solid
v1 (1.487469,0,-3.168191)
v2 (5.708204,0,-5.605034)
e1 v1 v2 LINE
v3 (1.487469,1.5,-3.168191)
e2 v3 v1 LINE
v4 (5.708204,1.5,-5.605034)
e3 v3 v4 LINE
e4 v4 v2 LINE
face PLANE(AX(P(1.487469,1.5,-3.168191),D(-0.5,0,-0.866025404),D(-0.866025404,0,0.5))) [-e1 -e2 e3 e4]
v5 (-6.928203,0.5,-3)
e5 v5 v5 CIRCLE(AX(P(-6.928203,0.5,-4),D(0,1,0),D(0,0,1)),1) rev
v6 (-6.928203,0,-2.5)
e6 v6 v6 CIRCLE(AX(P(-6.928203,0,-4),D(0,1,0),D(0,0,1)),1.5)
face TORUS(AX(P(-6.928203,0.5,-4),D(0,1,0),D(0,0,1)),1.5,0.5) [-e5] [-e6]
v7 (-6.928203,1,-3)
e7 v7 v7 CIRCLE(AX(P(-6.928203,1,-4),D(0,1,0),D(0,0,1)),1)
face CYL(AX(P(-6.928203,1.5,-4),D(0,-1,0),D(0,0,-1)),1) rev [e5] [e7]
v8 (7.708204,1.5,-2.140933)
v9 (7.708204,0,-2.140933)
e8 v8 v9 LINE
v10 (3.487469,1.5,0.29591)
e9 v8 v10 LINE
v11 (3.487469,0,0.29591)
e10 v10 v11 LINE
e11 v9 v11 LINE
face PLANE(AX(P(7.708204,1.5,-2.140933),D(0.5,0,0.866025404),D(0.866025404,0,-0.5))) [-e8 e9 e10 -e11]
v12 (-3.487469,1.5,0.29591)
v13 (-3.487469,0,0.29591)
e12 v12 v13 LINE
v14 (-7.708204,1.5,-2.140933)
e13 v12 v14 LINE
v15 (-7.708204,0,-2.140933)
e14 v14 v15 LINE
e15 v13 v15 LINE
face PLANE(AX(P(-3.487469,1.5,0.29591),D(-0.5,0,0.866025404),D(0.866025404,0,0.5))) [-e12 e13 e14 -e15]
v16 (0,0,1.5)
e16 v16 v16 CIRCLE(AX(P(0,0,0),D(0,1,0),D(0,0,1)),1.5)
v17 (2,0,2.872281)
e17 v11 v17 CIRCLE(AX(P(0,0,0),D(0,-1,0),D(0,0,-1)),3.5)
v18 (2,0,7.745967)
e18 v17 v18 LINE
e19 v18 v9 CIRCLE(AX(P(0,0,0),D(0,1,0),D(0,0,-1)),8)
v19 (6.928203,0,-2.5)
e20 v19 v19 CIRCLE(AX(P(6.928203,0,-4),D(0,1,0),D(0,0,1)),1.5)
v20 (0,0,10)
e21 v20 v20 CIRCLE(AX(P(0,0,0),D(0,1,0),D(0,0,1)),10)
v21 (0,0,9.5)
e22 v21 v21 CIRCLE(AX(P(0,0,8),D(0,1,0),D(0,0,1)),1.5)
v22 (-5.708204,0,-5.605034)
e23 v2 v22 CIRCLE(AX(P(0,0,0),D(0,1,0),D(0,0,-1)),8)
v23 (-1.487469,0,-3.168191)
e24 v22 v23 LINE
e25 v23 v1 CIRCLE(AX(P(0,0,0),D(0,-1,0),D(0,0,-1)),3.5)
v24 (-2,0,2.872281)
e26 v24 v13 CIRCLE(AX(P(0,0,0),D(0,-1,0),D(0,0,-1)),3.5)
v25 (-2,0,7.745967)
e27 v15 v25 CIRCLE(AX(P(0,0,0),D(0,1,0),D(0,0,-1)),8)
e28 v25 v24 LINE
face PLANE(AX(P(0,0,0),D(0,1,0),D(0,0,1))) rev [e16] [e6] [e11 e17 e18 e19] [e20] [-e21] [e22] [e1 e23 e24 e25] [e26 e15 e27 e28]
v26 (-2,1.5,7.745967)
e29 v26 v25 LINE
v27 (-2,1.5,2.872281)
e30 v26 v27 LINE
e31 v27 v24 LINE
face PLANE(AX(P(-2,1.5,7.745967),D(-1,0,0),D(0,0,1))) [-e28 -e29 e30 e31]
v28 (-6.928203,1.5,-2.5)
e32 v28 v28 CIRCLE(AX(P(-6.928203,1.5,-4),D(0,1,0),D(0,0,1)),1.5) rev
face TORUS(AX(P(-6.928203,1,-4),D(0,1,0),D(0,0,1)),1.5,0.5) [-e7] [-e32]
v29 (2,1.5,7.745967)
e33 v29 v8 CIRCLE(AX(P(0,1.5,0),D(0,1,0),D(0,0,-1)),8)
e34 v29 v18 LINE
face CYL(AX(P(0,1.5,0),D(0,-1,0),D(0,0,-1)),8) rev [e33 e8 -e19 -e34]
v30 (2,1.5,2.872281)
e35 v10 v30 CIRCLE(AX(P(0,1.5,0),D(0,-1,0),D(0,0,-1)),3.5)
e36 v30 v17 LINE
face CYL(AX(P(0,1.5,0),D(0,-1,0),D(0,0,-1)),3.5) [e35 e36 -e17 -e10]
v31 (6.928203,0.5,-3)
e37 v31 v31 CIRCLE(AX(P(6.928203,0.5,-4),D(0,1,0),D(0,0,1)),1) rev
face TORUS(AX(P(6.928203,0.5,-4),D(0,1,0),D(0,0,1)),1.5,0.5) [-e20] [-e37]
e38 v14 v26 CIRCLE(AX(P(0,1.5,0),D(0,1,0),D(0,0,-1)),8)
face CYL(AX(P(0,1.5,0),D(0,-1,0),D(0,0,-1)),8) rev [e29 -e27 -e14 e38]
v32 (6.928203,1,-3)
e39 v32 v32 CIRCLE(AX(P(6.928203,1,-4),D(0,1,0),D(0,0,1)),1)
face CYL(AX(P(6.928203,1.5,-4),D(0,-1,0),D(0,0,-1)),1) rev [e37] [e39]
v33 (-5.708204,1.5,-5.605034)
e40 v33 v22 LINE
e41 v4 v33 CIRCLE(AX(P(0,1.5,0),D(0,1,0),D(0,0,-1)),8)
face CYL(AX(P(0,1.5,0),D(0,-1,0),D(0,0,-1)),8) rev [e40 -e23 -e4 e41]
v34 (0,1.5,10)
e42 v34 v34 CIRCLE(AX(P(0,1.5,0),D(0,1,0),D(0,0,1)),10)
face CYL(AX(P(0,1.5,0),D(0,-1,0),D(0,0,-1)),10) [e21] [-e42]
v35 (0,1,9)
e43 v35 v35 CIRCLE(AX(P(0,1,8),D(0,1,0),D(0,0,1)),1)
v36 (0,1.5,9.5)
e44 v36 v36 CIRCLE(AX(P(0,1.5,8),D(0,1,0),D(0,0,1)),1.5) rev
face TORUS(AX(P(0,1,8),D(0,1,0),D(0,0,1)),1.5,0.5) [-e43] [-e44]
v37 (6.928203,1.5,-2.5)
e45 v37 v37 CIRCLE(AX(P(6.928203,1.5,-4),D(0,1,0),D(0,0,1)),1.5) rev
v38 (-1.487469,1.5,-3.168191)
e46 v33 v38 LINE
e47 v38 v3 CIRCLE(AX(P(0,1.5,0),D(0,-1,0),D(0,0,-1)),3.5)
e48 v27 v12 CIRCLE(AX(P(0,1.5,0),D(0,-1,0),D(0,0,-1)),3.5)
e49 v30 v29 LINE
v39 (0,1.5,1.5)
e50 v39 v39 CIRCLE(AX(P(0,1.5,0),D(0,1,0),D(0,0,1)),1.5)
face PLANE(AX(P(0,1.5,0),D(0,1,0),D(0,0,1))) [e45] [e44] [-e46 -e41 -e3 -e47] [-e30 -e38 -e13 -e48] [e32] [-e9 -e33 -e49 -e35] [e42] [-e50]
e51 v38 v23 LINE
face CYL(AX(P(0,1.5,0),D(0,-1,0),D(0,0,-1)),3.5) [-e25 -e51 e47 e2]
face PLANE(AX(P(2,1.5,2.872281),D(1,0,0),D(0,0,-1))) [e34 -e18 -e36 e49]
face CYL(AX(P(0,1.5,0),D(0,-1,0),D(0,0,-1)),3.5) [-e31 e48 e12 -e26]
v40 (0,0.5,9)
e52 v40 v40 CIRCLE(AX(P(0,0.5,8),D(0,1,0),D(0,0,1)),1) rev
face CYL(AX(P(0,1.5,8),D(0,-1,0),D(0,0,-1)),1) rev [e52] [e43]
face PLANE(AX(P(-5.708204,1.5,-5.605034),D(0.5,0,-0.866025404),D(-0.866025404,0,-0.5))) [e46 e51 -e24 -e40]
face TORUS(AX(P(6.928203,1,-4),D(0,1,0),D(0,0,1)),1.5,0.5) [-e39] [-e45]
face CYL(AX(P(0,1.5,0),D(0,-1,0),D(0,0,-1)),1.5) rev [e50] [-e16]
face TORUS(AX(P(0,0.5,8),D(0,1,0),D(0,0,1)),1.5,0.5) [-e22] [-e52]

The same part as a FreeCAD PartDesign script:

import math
import FreeCAD as App
import Part
import Sketcher
Q = App.Units.Quantity


def edges_at(feature, points):
    """Names of the edges that pass closest to the given points."""
    edges = feature.Shape.Edges
    near = lambda p: min(range(len(edges)), key=lambda i: edges[i].distToShape(Part.Vertex(*p))[0])
    return sorted({f"Edge{near(p) + 1}" for p in points})

doc = App.newDocument("Part")
body = doc.addObject("PartDesign::Body", "Body")

sketch1 = body.newObject("Sketcher::SketchObject", "Sketch")
sketch1.AttachmentSupport = (doc.getObject("XZ_Plane"), [""])
sketch1.MapMode = "FlatFace"
sketch1.addGeometry([
    Part.Circle(App.Vector(0, 0, 0), App.Vector(0, 0, 1), 10),
    Part.Circle(App.Vector(-6.9, -4, 0), App.Vector(0, 0, 1), 1),
    Part.LineSegment(App.Vector(-7.7, -2.1, 0), App.Vector(-3.5, 0.3, 0)),
    Part.ArcOfCircle(Part.Circle(App.Vector(0, 0, 0), App.Vector(0, 0, 1), 3.5), math.radians(125), math.radians(175)),
    Part.LineSegment(App.Vector(-2, 2.9, 0), App.Vector(-2, 7.7, 0)),
    Part.ArcOfCircle(Part.Circle(App.Vector(0, 0, 0), App.Vector(0, 0, 1), 8), math.radians(104), math.radians(196)),
    Part.LineSegment(App.Vector(-1.5, -3.2, 0), App.Vector(-5.7, -5.6, 0)),
    Part.ArcOfCircle(Part.Circle(App.Vector(0, 0, 0), App.Vector(0, 0, 1), 8), math.radians(-136), math.radians(-44)),
    Part.LineSegment(App.Vector(5.7, -5.6, 0), App.Vector(1.5, -3.2, 0)),
    Part.ArcOfCircle(Part.Circle(App.Vector(0, 0, 0), App.Vector(0, 0, 1), 3.5), math.radians(-115), math.radians(-65)),
    Part.Circle(App.Vector(0, 0, 0), App.Vector(0, 0, 1), 1.5),
    Part.Circle(App.Vector(6.9, -4, 0), App.Vector(0, 0, 1), 1),
    Part.Circle(App.Vector(0, 8, 0), App.Vector(0, 0, 1), 1),
    Part.LineSegment(App.Vector(2, 7.7, 0), App.Vector(2, 2.9, 0)),
    Part.ArcOfCircle(Part.Circle(App.Vector(0, 0, 0), App.Vector(0, 0, 1), 3.5), math.radians(5), math.radians(55)),
    Part.LineSegment(App.Vector(3.5, 0.3, 0), App.Vector(7.7, -2.1, 0)),
    Part.ArcOfCircle(Part.Circle(App.Vector(0, 0, 0), App.Vector(0, 0, 1), 8), math.radians(-16), math.radians(76)),
], False)
sketch1.addConstraint([
    Sketcher.Constraint("Coincident", 2, 2, 3, 2),
    Sketcher.Constraint("Coincident", 3, 1, 4, 1),
    Sketcher.Constraint("Coincident", 4, 2, 5, 1),
    Sketcher.Constraint("Coincident", 5, 2, 2, 1),
    Sketcher.Constraint("Coincident", 6, 2, 7, 1),
    Sketcher.Constraint("Coincident", 7, 2, 8, 1),
    Sketcher.Constraint("Coincident", 8, 2, 9, 2),
    Sketcher.Constraint("Coincident", 9, 1, 6, 1),
    Sketcher.Constraint("Coincident", 13, 2, 14, 2),
    Sketcher.Constraint("Coincident", 14, 1, 15, 1),
    Sketcher.Constraint("Coincident", 15, 2, 16, 1),
    Sketcher.Constraint("Coincident", 16, 2, 13, 1),
    Sketcher.Constraint("Vertical", 4),
    Sketcher.Constraint("Vertical", 13),
    Sketcher.Constraint("Coincident", 0, 3, -1, 1),
    Sketcher.Constraint("Coincident", 3, 3, -1, 1),
    Sketcher.Constraint("Coincident", 5, 3, -1, 1),
    Sketcher.Constraint("Coincident", 7, 3, -1, 1),
    Sketcher.Constraint("Coincident", 9, 3, -1, 1),
    Sketcher.Constraint("Coincident", 10, 3, -1, 1),
    Sketcher.Constraint("Coincident", 14, 3, -1, 1),
    Sketcher.Constraint("Coincident", 16, 3, -1, 1),
    Sketcher.Constraint("Equal", 5, 7),
    Sketcher.Constraint("Equal", 3, 9),
    Sketcher.Constraint("Equal", 1, 11),
    Sketcher.Constraint("Equal", 11, 12),
    Sketcher.Constraint("Equal", 9, 14),
    Sketcher.Constraint("Equal", 7, 16),
    Sketcher.Constraint("Symmetric", 1, 3, 11, 3, -2),
    Sketcher.Constraint("PointOnObject", 12, 3, -2),
    Sketcher.Constraint("Parallel", 2, 6),
    Sketcher.Constraint("Parallel", 8, 15),
    Sketcher.Constraint("Horizontal", 6, 2, 7, 2),
    Sketcher.Constraint("Horizontal", 8, 2, 9, 1),
    Sketcher.Constraint("Horizontal", 3, 1, 13, 2),
    Sketcher.Constraint("Horizontal", 2, 2, 14, 1),
    Sketcher.Constraint("Equal", 2, 6),
    Sketcher.Constraint("Diameter", 0, 20.0),
    Sketcher.Constraint("Diameter", 1, 2.0),
    Sketcher.Constraint("Diameter", 10, 3.0),
    Sketcher.Constraint("Radius", 5, 8.0),
    Sketcher.Constraint("Radius", 3, 3.5),
    Sketcher.Constraint("Angle", 2, Q("30 deg")),
    Sketcher.Constraint("DistanceY", 1, 3, -1, 1, 4.0),
    Sketcher.Constraint("DistanceY", -1, 1, 12, 3, 8.0),
    Sketcher.Constraint("DistanceX", 3, 1, -1, 1, 2.0),
    Sketcher.Constraint("DistanceX", 5, 2, 6, 2, 2.0),
    Sketcher.Constraint("DistanceX", 5, 2, 1, 3, 0.780001),
])
pad1 = body.newObject("PartDesign::Pad", "Pad")
pad1.Profile = sketch1
pad1.Length = 1.5
pad1.Reversed = True
doc.recompute()

fillet = body.newObject("PartDesign::Fillet", "Fillet")
fillet.Base = (pad1, edges_at(pad1, [
    (6.928, 0, -5),
    (6.928, 1.5, -5),
    (0, 0, 7),
    (0, 1.5, 7),
    (-6.928, 0, -5),
    (-6.928, 1.5, -5),
]))
fillet.Radius = 0.5

doc.recompute()
